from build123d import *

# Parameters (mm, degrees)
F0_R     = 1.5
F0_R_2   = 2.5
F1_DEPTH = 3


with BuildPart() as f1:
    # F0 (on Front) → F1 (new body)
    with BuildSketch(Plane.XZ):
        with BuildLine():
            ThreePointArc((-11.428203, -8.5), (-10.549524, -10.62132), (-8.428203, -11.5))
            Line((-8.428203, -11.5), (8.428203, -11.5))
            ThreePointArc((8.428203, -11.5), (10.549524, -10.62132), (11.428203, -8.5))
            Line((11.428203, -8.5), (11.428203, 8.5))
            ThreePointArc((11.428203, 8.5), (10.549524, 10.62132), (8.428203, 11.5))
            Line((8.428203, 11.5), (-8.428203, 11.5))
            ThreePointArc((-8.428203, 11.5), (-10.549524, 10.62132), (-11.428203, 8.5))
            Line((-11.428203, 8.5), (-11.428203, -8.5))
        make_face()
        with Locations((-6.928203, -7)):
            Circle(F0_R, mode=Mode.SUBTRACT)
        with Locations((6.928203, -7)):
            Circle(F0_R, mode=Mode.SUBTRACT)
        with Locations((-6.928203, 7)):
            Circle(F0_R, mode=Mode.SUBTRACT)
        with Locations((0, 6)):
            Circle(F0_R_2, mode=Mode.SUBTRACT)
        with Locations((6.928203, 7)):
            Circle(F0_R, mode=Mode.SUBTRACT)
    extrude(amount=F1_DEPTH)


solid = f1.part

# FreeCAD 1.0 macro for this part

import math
import FreeCAD as App
import Part
import Sketcher

V = App.Vector

doc = App.newDocument("Part")
params = doc.addObject("Spreadsheet::Sheet", "Params")
for row, (alias, value) in enumerate([
    ("sketch1_diameter", "3 mm"),
    ("sketch1_diameter2", "5 mm"),
    ("sketch1_radius", "2.999999 mm"),
    ("sketch1_height", "17 mm"),
    ("pad1_length", "3 mm"),
], start=1):
    params.set(f"A{row}", alias)
    params.set(f"B{row}", "=" + value)
    params.setAlias(f"B{row}", alias)

body = doc.addObject("PartDesign::Body", "Body")

# Sketch on XZ plane
sketch1 = body.newObject("Sketcher::SketchObject", "Sketch")
sketch1.AttachmentSupport = (doc.getObject("XZ_Plane"), [""])
sketch1.MapMode = "FlatFace"
sketch1.addGeometry([
    Part.ArcOfCircle(Part.Circle(V(-8.4, -8.5, 0), V(0, 0, 1), 3), math.radians(180), math.radians(270)),  # 0
    Part.LineSegment(V(-8.4, -11.5, 0), V(8.4, -11.5, 0)),  # 1
    Part.ArcOfCircle(Part.Circle(V(8.4, -8.5, 0), V(0, 0, 1), 3), math.radians(-90), math.radians(0)),  # 2
    Part.LineSegment(V(11.4, -8.5, 0), V(11.4, 8.5, 0)),  # 3
    Part.ArcOfCircle(Part.Circle(V(8.4, 8.5, 0), V(0, 0, 1), 3), math.radians(0), math.radians(90)),  # 4
    Part.LineSegment(V(8.4, 11.5, 0), V(-8.4, 11.5, 0)),  # 5
    Part.ArcOfCircle(Part.Circle(V(-8.4, 8.5, 0), V(0, 0, 1), 3), math.radians(90), math.radians(180)),  # 6
    Part.LineSegment(V(-11.4, 8.5, 0), V(-11.4, -8.5, 0)),  # 7
    Part.Circle(V(-6.9, -7, 0), V(0, 0, 1), 1.5),  # 8
    Part.Circle(V(6.9, -7, 0), V(0, 0, 1), 1.5),  # 9
    Part.Circle(V(-6.9, 7, 0), V(0, 0, 1), 1.5),  # 10
    Part.Circle(V(0, 6, 0), V(0, 0, 1), 2.5),  # 11
    Part.Circle(V(6.9, 7, 0), V(0, 0, 1), 1.5),  # 12
], False)
sketch1.addConstraint([
    Sketcher.Constraint("Tangent", 0, 2, 1, 1),
    Sketcher.Constraint("Tangent", 1, 2, 2, 1),
    Sketcher.Constraint("Tangent", 2, 2, 3, 1),
    Sketcher.Constraint("Tangent", 3, 2, 4, 1),
    Sketcher.Constraint("Tangent", 4, 2, 5, 1),
    Sketcher.Constraint("Tangent", 5, 2, 6, 1),
    Sketcher.Constraint("Tangent", 6, 2, 7, 1),
    Sketcher.Constraint("Tangent", 7, 2, 0, 1),
    Sketcher.Constraint("Horizontal", 1),
    Sketcher.Constraint("Vertical", 3),
    Sketcher.Constraint("Horizontal", 5),
    Sketcher.Constraint("Vertical", 7),
    Sketcher.Constraint("Equal", 0, 2),
    Sketcher.Constraint("Equal", 2, 4),
    Sketcher.Constraint("Equal", 4, 6),
    Sketcher.Constraint("Equal", 8, 9),
    Sketcher.Constraint("Equal", 9, 10),
    Sketcher.Constraint("Equal", 10, 12),
    Sketcher.Constraint("Symmetric", 0, 3, 4, 3, -1, 1),
    Sketcher.Constraint("Symmetric", 9, 3, 10, 3, -1, 1),
    Sketcher.Constraint("Symmetric", 8, 3, 12, 3, -1, 1),
    Sketcher.Constraint("Symmetric", 8, 3, 9, 3, -2),
    Sketcher.Constraint("PointOnObject", 11, 3, -2),
    Sketcher.Constraint("Diameter", 8, 3.0),
    Sketcher.Constraint("Diameter", 11, 5.0),
    Sketcher.Constraint("Radius", 0, 2.999999),
    Sketcher.Constraint("DistanceY", 3, 1, 3, 2, 17.0),
    Sketcher.Constraint("DistanceY", 8, 3, -1, 1, 7.0),
    Sketcher.Constraint("DistanceY", -1, 1, 11, 3, 6.0),
    Sketcher.Constraint("DistanceX", 0, 3, 8, 3, 1.500001),
    Sketcher.Constraint("DistanceX", 1, 1, 1, 2, 16.856406),
])
sketch1.setExpression("Constraints[23]", "Params.sketch1_diameter")
sketch1.setExpression("Constraints[24]", "Params.sketch1_diameter2")
sketch1.setExpression("Constraints[25]", "Params.sketch1_radius")
sketch1.setExpression("Constraints[26]", "Params.sketch1_height")
pad1 = body.newObject("PartDesign::Pad", "Pad")
pad1.Profile = sketch1
pad1.setExpression("Length", "Params.pad1_length")

doc.recompute()
